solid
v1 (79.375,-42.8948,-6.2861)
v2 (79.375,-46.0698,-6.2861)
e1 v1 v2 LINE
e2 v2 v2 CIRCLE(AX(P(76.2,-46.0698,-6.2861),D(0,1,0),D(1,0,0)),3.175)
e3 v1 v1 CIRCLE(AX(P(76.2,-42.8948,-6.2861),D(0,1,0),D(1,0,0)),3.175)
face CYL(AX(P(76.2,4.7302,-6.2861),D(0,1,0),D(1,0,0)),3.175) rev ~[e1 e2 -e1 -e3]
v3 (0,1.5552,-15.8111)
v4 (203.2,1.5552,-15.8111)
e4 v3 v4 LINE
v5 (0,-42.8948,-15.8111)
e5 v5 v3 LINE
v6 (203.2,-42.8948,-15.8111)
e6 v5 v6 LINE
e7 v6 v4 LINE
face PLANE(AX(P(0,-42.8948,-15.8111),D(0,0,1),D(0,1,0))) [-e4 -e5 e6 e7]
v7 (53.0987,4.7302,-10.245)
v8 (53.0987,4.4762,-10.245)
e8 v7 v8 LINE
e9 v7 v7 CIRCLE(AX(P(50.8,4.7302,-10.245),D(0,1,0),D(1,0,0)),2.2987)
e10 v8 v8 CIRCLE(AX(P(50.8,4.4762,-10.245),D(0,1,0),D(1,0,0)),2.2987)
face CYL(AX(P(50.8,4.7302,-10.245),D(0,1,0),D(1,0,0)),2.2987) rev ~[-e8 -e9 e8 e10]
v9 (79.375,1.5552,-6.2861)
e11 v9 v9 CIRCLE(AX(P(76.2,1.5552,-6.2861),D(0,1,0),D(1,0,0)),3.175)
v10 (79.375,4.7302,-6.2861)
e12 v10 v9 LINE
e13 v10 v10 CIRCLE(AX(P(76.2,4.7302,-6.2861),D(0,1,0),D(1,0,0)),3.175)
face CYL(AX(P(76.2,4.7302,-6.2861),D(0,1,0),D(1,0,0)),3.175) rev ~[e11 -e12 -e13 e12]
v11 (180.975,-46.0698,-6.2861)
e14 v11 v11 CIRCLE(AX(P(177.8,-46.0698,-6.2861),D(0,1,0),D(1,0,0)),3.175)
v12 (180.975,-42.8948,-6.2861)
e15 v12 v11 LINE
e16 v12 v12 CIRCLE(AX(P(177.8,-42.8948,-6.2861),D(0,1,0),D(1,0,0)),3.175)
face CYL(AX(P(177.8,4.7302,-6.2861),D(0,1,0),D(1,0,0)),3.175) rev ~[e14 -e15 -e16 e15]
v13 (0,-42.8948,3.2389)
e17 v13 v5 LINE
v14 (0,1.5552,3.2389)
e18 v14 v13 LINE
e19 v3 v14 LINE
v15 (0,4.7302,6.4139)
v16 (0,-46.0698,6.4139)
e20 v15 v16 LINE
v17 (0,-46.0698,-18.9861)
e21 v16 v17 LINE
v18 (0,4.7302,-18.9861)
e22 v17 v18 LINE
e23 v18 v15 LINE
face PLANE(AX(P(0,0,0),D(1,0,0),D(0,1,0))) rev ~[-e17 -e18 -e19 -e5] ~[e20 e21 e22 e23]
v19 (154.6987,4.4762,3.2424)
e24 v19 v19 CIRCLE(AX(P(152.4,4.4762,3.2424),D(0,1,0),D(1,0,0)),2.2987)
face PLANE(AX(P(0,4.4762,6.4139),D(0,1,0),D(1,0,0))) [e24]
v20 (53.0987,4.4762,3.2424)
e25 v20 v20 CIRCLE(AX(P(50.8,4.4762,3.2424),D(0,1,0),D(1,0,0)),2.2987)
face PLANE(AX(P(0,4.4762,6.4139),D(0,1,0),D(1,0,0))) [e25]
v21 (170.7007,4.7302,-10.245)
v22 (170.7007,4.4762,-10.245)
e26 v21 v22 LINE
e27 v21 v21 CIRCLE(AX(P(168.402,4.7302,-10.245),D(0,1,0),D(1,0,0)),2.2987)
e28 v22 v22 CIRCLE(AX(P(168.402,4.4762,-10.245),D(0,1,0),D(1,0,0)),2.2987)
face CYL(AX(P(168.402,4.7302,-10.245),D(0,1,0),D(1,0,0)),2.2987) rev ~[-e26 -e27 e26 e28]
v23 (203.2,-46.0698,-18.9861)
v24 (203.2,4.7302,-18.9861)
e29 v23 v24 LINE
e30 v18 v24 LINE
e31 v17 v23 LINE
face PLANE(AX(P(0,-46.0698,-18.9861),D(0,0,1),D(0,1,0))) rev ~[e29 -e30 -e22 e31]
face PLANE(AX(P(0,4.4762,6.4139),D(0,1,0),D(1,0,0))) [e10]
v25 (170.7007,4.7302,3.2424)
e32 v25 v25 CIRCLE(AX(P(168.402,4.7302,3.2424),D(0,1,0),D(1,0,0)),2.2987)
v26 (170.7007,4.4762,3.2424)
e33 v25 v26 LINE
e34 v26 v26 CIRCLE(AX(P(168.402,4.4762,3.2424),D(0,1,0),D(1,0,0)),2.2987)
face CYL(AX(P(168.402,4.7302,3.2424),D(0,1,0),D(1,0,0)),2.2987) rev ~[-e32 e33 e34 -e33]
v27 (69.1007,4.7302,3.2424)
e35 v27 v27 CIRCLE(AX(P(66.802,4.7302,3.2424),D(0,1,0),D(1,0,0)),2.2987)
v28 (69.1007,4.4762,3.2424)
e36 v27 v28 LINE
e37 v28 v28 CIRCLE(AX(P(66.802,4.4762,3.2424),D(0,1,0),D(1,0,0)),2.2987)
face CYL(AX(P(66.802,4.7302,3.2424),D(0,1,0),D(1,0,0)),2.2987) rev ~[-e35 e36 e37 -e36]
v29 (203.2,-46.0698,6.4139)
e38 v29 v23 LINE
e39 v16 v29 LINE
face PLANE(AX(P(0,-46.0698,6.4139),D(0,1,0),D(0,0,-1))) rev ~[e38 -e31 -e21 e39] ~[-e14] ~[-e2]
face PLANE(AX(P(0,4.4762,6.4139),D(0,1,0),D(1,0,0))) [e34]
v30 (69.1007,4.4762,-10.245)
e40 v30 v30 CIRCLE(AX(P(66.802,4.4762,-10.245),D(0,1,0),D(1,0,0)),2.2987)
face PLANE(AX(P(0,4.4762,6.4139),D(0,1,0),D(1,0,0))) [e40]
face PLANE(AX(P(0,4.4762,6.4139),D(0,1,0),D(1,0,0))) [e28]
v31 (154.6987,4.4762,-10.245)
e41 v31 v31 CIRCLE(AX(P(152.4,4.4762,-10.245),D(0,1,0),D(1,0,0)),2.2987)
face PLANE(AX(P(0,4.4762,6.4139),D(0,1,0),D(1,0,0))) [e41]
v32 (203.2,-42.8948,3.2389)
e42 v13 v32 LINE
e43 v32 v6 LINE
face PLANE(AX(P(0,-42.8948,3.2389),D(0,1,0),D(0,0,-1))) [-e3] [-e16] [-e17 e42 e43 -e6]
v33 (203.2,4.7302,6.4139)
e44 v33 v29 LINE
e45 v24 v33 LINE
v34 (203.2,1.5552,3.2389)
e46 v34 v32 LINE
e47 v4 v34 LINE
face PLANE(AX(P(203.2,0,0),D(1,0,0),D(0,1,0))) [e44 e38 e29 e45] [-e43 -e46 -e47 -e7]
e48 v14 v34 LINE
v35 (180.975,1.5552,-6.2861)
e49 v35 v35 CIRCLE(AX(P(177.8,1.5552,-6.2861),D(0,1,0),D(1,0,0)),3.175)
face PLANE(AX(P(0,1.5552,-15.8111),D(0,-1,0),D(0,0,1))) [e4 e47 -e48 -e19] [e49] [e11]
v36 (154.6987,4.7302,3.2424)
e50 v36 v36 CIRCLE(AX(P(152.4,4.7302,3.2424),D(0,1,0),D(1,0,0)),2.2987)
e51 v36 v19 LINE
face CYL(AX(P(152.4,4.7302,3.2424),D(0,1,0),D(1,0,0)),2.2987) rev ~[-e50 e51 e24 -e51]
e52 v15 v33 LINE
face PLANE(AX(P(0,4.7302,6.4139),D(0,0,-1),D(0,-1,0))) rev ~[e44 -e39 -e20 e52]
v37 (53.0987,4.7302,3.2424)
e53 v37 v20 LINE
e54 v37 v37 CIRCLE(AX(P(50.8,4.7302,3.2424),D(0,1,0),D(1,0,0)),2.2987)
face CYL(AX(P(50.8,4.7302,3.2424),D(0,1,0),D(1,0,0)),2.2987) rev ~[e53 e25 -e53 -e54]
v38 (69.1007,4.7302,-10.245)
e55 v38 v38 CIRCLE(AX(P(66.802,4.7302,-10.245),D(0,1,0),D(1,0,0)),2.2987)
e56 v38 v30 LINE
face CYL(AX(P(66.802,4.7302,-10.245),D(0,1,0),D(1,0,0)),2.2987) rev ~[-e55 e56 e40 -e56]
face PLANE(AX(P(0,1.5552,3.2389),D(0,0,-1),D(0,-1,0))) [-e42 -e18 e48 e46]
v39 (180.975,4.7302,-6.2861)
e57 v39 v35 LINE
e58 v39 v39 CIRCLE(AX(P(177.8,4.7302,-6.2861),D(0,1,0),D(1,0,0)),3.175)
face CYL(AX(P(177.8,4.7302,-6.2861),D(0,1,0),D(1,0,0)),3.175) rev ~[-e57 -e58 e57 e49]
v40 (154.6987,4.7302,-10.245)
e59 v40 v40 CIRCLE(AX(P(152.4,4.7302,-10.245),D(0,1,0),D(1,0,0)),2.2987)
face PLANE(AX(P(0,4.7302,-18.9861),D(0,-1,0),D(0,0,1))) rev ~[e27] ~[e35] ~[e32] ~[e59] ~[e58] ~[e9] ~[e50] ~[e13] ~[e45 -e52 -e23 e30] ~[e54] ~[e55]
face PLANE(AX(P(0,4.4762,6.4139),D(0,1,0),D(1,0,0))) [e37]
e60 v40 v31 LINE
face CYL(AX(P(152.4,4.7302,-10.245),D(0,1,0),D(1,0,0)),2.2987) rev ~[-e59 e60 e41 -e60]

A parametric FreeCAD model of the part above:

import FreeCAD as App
import Part
import Sketcher

V = App.Vector
Q = App.Units.Quantity

doc = App.newDocument("Part")
body = doc.addObject("PartDesign::Body", "Body")

sketch1 = body.newObject("Sketcher::SketchObject", "Sketch")
sketch1.AttachmentSupport = (doc.getObject("YZ_Plane"), [""])
sketch1.MapMode = "FlatFace"
sketch1.addGeometry([
    Part.LineSegment(V(4.7302, -18.9861, 0), V(4.7302, 6.4139, 0)),
    Part.LineSegment(V(4.7302, 6.4139, 0), V(-46.0698, 6.4139, 0)),
    Part.LineSegment(V(-46.0698, 6.4139, 0), V(-46.0698, -18.9861, 0)),
    Part.LineSegment(V(-46.0698, -18.9861, 0), V(4.7302, -18.9861, 0)),
    Part.LineSegment(V(-42.8948, 3.2389, 0), V(1.5552, 3.2389, 0)),
    Part.LineSegment(V(1.5552, 3.2389, 0), V(1.5552, -15.8111, 0)),
    Part.LineSegment(V(1.5552, -15.8111, 0), V(-42.8948, -15.8111, 0)),
    Part.LineSegment(V(-42.8948, -15.8111, 0), V(-42.8948, 3.2389, 0)),
], False)
sketch1.addConstraint([
    Sketcher.Constraint("Coincident", 0, 2, 1, 1),
    Sketcher.Constraint("Coincident", 1, 2, 2, 1),
    Sketcher.Constraint("Coincident", 2, 2, 3, 1),
    Sketcher.Constraint("Coincident", 3, 2, 0, 1),
    Sketcher.Constraint("Coincident", 4, 2, 5, 1),
    Sketcher.Constraint("Coincident", 5, 2, 6, 1),
    Sketcher.Constraint("Coincident", 6, 2, 7, 1),
    Sketcher.Constraint("Coincident", 7, 2, 4, 1),
    Sketcher.Constraint("Vertical", 0),
    Sketcher.Constraint("Horizontal", 1),
    Sketcher.Constraint("Vertical", 2),
    Sketcher.Constraint("Horizontal", 3),
    Sketcher.Constraint("Horizontal", 4),
    Sketcher.Constraint("Vertical", 5),
    Sketcher.Constraint("Horizontal", 6),
    Sketcher.Constraint("Vertical", 7),
    Sketcher.Constraint("DistanceX", 1, 2, 1, 1, Q("2 in")),
    Sketcher.Constraint("DistanceY", 0, 1, 0, 2, Q("1 in")),
    Sketcher.Constraint("DistanceX", 4, 2, 0, 2, Q("0.125 in")),
    Sketcher.Constraint("DistanceY", 4, 2, 0, 2, Q("0.125 in")),
    Sketcher.Constraint("DistanceY", 3, 2, 5, 2, Q("0.125 in")),
    Sketcher.Constraint("DistanceX", 2, 2, 6, 2, Q("0.125 in")),
    Sketcher.Constraint("DistanceX", -1, 1, 0, 2, 4.7302),
    Sketcher.Constraint("DistanceY", -1, 1, 0, 2, 6.414),
])
pad1 = body.newObject("PartDesign::Pad", "Pad")
pad1.Profile = sketch1
pad1.Length = Q("8 in")

sketch2 = body.newObject("Sketcher::SketchObject", "Sketch001")
sketch2.AttachmentSupport = (doc.getObject("XZ_Plane"), [""])
sketch2.MapMode = "FlatFace"
sketch2.AttachmentOffset = App.Placement(V(0, 0, -4.7302), App.Rotation())
sketch2.addGeometry([
    Part.Circle(V(177.8, -6.2861, 0), V(0, 0, 1), 3.175),
    Part.Circle(V(76.2, -6.2861, 0), V(0, 0, 1), 3.175),
], False)
sketch2.addConstraint([
    Sketcher.Constraint("Equal", 0, 1),
    Sketcher.Constraint("Horizontal", 0, 3, 1, 3),
    Sketcher.Constraint("Diameter", 0, Q("0.25 in")),
    Sketcher.Constraint("DistanceX", -1, 1, 0, 3, Q("7 in")),
    Sketcher.Constraint("DistanceX", -1, 1, 1, 3, Q("3 in")),
    Sketcher.Constraint("DistanceY", 0, 3, -1, 1, 6.286),
])
pocket1 = body.newObject("PartDesign::Pocket", "Pocket")
pocket1.Profile = sketch2
pocket1.Length = Q("8 in")
pocket1.Reversed = True

sketch3 = body.newObject("Sketcher::SketchObject", "Sketch002")
sketch3.AttachmentSupport = (doc.getObject("XZ_Plane"), [""])
sketch3.MapMode = "FlatFace"
sketch3.AttachmentOffset = App.Placement(V(0, 0, -4.7302), App.Rotation())
sketch3.addGeometry([
    Part.Circle(V(66.802, -10.245, 0), V(0, 0, 1), 2.2987),
    Part.Circle(V(66.802, 3.2424, 0), V(0, 0, 1), 2.2987),
    Part.Circle(V(50.8, 3.2424, 0), V(0, 0, 1), 2.2987),
    Part.Circle(V(152.4, -10.245, 0), V(0, 0, 1), 2.2987),
    Part.Circle(V(152.4, 3.2424, 0), V(0, 0, 1), 2.2987),
    Part.Circle(V(168.402, 3.2424, 0), V(0, 0, 1), 2.2987),
    Part.Circle(V(168.402, -10.245, 0), V(0, 0, 1), 2.2987),
    Part.Circle(V(50.8, -10.245, 0), V(0, 0, 1), 2.2987),
], False)
sketch3.addConstraint([
    Sketcher.Constraint("Equal", 0, 1),
    Sketcher.Constraint("Equal", 1, 2),
    Sketcher.Constraint("Equal", 2, 3),
    Sketcher.Constraint("Equal", 3, 4),
    Sketcher.Constraint("Equal", 4, 5),
    Sketcher.Constraint("Equal", 5, 6),
    Sketcher.Constraint("Equal", 6, 7),
    Sketcher.Constraint("Horizontal", 1, 3, 2, 3),
    Sketcher.Constraint("Horizontal", 0, 3, 3, 3),
    Sketcher.Constraint("Horizontal", 2, 3, 4, 3),
    Sketcher.Constraint("Horizontal", 4, 3, 5, 3),
    Sketcher.Constraint("Horizontal", 3, 3, 6, 3),
    Sketcher.Constraint("Horizontal", 6, 3, 7, 3),
    Sketcher.Constraint("Vertical", 0, 3, 1, 3),
    Sketcher.Constraint("Vertical", 3, 3, 4, 3),
    Sketcher.Constraint("Vertical", 5, 3, 6, 3),
    Sketcher.Constraint("Vertical", 2, 3, 7, 3),
    Sketcher.Constraint("Diameter", 0, Q("0.181 in")),
    Sketcher.Constraint("DistanceX", -1, 1, 2, 3, Q("2 in")),
    Sketcher.Constraint("DistanceX", -1, 1, 3, 3, Q("6 in")),
    Sketcher.Constraint("DistanceX", 1, 3, 5, 3, Q("4 in")),
    Sketcher.Constraint("DistanceX", -1, 1, 0, 3, Q("2.63 in")),
    Sketcher.Constraint("DistanceY", 0, 3, 1, 3, Q("0.531 in")),
    Sketcher.Constraint("DistanceY", 0, 3, -1, 1, 10.245),
])
pocket2 = body.newObject("PartDesign::Pocket", "Pocket001")
pocket2.Profile = sketch3
pocket2.Length = Q("0.01 in")
pocket2.Reversed = True

doc.recompute()
